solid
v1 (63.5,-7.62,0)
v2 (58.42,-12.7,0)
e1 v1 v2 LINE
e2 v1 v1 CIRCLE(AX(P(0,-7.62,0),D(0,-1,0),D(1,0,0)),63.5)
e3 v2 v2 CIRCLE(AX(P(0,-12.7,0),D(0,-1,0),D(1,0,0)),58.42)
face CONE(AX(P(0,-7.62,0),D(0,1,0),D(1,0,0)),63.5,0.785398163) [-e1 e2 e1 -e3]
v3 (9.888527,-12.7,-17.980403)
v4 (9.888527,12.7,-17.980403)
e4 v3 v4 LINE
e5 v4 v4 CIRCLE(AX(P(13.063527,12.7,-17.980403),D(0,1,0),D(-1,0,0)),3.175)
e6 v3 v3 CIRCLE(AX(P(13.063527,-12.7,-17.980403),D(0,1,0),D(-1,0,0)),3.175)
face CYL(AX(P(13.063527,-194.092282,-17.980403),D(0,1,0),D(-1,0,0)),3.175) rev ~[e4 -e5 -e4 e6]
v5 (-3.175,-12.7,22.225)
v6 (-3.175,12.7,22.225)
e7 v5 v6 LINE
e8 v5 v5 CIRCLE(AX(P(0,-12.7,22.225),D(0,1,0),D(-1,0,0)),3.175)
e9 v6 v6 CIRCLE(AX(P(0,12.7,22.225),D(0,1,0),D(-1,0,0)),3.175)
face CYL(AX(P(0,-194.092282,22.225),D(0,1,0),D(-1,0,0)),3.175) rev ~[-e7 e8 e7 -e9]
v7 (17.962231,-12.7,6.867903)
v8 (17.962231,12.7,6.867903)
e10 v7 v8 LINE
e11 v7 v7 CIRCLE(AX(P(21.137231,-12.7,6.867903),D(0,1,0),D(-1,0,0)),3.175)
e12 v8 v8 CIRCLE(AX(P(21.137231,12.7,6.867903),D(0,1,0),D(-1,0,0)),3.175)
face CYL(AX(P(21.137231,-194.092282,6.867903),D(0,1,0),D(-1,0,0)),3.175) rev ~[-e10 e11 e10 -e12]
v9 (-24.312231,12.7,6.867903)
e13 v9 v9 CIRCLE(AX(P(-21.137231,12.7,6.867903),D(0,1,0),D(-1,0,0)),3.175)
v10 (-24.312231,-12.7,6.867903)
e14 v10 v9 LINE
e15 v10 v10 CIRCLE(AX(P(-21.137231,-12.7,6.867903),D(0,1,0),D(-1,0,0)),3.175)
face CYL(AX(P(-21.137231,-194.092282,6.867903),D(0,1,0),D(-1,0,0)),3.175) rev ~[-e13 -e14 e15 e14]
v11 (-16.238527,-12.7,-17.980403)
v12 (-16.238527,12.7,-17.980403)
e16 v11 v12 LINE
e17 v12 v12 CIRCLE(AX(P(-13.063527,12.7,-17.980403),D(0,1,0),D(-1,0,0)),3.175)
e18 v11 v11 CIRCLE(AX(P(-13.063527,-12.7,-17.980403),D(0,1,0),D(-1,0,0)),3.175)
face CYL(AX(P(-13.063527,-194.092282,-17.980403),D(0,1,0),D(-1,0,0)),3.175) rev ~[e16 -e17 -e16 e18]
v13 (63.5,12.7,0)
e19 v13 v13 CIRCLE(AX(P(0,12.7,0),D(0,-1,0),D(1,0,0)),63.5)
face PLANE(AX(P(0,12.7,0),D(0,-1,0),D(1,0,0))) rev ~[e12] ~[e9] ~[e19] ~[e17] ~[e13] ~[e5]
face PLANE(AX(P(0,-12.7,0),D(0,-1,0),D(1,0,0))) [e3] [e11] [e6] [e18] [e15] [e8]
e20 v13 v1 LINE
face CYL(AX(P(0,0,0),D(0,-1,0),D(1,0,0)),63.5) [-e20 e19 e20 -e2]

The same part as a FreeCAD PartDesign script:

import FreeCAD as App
import Part
import Sketcher

V = App.Vector
Q = App.Units.Quantity


def edges_at(feature, points):
    """Names of the edges that pass closest to the given points."""
    edges = feature.Shape.Edges
    near = lambda p: min(range(len(edges)), key=lambda i: edges[i].distToShape(Part.Vertex(*p))[0])
    return sorted({f"Edge{near(p) + 1}" for p in points})

doc = App.newDocument("Part")
body = doc.addObject("PartDesign::Body", "Body")

sketch1 = body.newObject("Sketcher::SketchObject", "Sketch")
sketch1.AttachmentSupport = (doc.getObject("XZ_Plane"), [""])
sketch1.MapMode = "FlatFace"
sketch1.addGeometry(Part.Circle(V(0, 0, 0), V(0, 0, 1), 64), False)
sketch1.addConstraint([
    Sketcher.Constraint("Coincident", 0, 3, -1, 1),
    Sketcher.Constraint("Diameter", 0, Q("5 in")),
])
pad1 = body.newObject("PartDesign::Pad", "Pad")
pad1.Profile = sketch1
pad1.Length = Q("1 in")
pad1.Midplane = True

sketch2 = body.newObject("Sketcher::SketchObject", "Sketch001")
sketch2.AttachmentSupport = (doc.getObject("XZ_Plane"), [""])
sketch2.MapMode = "FlatFace"
sketch2.AttachmentOffset = App.Placement(V(0, 0, 0.5 * 25.4), App.Rotation())
sketch2.addGeometry([
    Part.Circle(V(0, 22.2, 0), V(0, 0, 1), 3.2),
    Part.Circle(V(21.1, 6.9, 0), V(0, 0, 1), 3.2),
    Part.Circle(V(13.1, -18, 0), V(0, 0, 1), 3.2),
    Part.Circle(V(-13.1, -18, 0), V(0, 0, 1), 3.2),
    Part.Circle(V(-21.1, 6.9, 0), V(0, 0, 1), 3.2),
], False)
sketch2.addConstraint([
    Sketcher.Constraint("Equal", 0, 1),
    Sketcher.Constraint("Equal", 1, 2),
    Sketcher.Constraint("Equal", 2, 3),
    Sketcher.Constraint("Equal", 3, 4),
    Sketcher.Constraint("Symmetric", 2, 3, 3, 3, -2),
    Sketcher.Constraint("Symmetric", 1, 3, 4, 3, -2),
    Sketcher.Constraint("PointOnObject", 0, 3, -2),
    Sketcher.Constraint("Diameter", 0, Q("0.25 in")),
    Sketcher.Constraint("DistanceY", -1, 1, 0, 3, Q("0.875 in")),
    Sketcher.Constraint("DistanceX", -1, 1, 1, 3, Q("21.137231 mm")),
    Sketcher.Constraint("DistanceY", -1, 1, 1, 3, Q("6.867903 mm")),
    Sketcher.Constraint("DistanceX", -1, 1, 2, 3, Q("13.063527 mm")),
    Sketcher.Constraint("DistanceY", 2, 3, -1, 1, Q("17.980403 mm")),
])
doc.recompute()
hole = body.newObject("PartDesign::Hole", "Hole")
hole.Profile = sketch2
hole.ThreadType = "None"
hole.Diameter = Q("0.25 in")
hole.DepthType = "ThroughAll"
doc.recompute()

chamfer = body.newObject("PartDesign::Chamfer", "Chamfer")
chamfer.Base = (hole, edges_at(hole, [(-63.5, -12.7, 0)]))
chamfer.Size = Q("0.2 in")

doc.recompute()
